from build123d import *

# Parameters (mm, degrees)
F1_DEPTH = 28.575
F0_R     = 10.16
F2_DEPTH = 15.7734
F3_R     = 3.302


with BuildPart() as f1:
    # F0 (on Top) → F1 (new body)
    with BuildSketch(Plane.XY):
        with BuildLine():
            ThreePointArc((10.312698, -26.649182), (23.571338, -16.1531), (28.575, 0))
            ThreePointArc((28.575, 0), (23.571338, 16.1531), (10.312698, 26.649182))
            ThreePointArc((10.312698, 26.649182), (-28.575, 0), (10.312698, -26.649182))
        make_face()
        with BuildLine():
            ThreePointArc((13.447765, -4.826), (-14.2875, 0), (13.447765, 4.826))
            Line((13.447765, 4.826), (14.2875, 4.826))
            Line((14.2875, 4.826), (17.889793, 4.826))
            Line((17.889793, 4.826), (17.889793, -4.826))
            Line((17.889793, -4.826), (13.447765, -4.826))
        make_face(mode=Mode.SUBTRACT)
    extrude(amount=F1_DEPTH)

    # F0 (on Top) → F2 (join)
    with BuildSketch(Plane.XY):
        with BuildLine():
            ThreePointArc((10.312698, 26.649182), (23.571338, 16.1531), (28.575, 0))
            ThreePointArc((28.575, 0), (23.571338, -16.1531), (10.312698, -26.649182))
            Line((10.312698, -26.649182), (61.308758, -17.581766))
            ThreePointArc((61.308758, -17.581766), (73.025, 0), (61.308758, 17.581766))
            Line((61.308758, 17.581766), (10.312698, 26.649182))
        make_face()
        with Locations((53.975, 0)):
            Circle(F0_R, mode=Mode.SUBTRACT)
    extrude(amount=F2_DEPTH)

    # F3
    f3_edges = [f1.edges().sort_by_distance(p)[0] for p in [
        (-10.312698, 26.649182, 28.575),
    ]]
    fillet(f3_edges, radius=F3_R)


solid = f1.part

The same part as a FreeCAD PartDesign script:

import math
import FreeCAD as App
import Part
import Sketcher
Q = App.Units.Quantity


def edges_at(feature, points):
    """Names of the edges that pass closest to the given points."""
    edges = feature.Shape.Edges
    near = lambda p: min(range(len(edges)), key=lambda i: edges[i].distToShape(Part.Vertex(*p))[0])
    return sorted({f"Edge{near(p) + 1}" for p in points})

doc = App.newDocument("Part")
body = doc.addObject("PartDesign::Body", "Body")

# Sketch on XY plane
sketch1 = doc.addObject("Sketcher::SketchObject", "Sketch")
body.addObject(sketch1)
sketch1.AttachmentSupport = (doc.XY_Plane, [""])
sketch1.MapMode = "FlatFace"
sketch1.addGeometry([
    Part.ArcOfCircle(Part.Circle(App.Vector(0, 0, 0), App.Vector(0, 0, 1), 28.6), math.radians(-69), math.radians(0)),  # 0
    Part.ArcOfCircle(Part.Circle(App.Vector(0, 0, 0), App.Vector(0, 0, 1), 28.6), math.radians(0), math.radians(69)),  # 1
    Part.ArcOfCircle(Part.Circle(App.Vector(0, 0, 0), App.Vector(0, 0, 1), 28.6), math.radians(69), math.radians(291)),  # 2
    Part.LineSegment(App.Vector(17.9, -4.8, 0), App.Vector(13.4, -4.8, 0)),  # 3
    Part.ArcOfCircle(Part.Circle(App.Vector(0, 0, 0), App.Vector(0, 0, 1), 14.3), math.radians(20), math.radians(340)),  # 4
    Part.LineSegment(App.Vector(13.4, 4.8, 0), App.Vector(17.9, 4.8, 0)),  # 5
    Part.LineSegment(App.Vector(17.9, 4.8, 0), App.Vector(17.9, -4.8, 0)),  # 6
], False)
sketch1.addConstraint([
    Sketcher.Constraint("Tangent", 0, 2, 1, 1),
    Sketcher.Constraint("Tangent", 1, 2, 2, 1),
    Sketcher.Constraint("Tangent", 2, 2, 0, 1),
    Sketcher.Constraint("Coincident", 3, 2, 4, 2),
    Sketcher.Constraint("Coincident", 4, 1, 5, 1),
    Sketcher.Constraint("Coincident", 5, 2, 6, 1),
    Sketcher.Constraint("Coincident", 6, 2, 3, 1),
    Sketcher.Constraint("Horizontal", 3),
    Sketcher.Constraint("Horizontal", 5),
    Sketcher.Constraint("Vertical", 6),
    Sketcher.Constraint("Coincident", 0, 3, -1, 1),
    Sketcher.Constraint("Coincident", 4, 3, -1, 1),
    Sketcher.Constraint("PointOnObject", 0, 2, -1),
    Sketcher.Constraint("Vertical", 1, 2, 2, 2),
    Sketcher.Constraint("Vertical", 3, 2, 4, 1),
    Sketcher.Constraint("Radius", 0, Q("1.1250001 in")),
    Sketcher.Constraint("Radius", 4, Q("0.5625 in")),
    Sketcher.Constraint("DistanceY", 6, 2, 6, 1, Q("0.38 in")),
    Sketcher.Constraint("DistanceX", 3, 2, 3, 1, 4.442028),
    Sketcher.Constraint("DistanceX", -1, 1, 2, 2, 10.312698),
])
pad1 = doc.addObject("PartDesign::Pad", "Pad")
body.addObject(pad1)
pad1.Profile = sketch1
pad1.Length = Q("1.125 in")

# Sketch on XY plane
sketch2 = doc.addObject("Sketcher::SketchObject", "Sketch001")
body.addObject(sketch2)
sketch2.AttachmentSupport = (doc.XY_Plane, [""])
sketch2.MapMode = "FlatFace"
sketch2.addGeometry([
    Part.ArcOfCircle(Part.Circle(App.Vector(0, 0, 0), App.Vector(0, 0, 1), 29), math.radians(0), math.radians(69)),  # 0
    Part.ArcOfCircle(Part.Circle(App.Vector(0, 0, 0), App.Vector(0, 0, 1), 29), math.radians(-69), math.radians(0)),  # 1
    Part.LineSegment(App.Vector(10, -27, 0), App.Vector(61, -18, 0)),  # 2
    Part.ArcOfCircle(Part.Circle(App.Vector(54, 0, 0), App.Vector(0, 0, 1), 19), math.radians(-67), math.radians(67)),  # 3
    Part.LineSegment(App.Vector(61, 18, 0), App.Vector(10, 27, 0)),  # 4
    Part.Circle(App.Vector(54, 0, 0), App.Vector(0, 0, 1), 10),  # 5
], False)
sketch2.addConstraint([
    Sketcher.Constraint("Tangent", 0, 1, 1, 2),
    Sketcher.Constraint("Coincident", 1, 1, 2, 1),
    Sketcher.Constraint("Coincident", 2, 2, 3, 1),
    Sketcher.Constraint("Coincident", 3, 2, 4, 1),
    Sketcher.Constraint("Coincident", 4, 2, 0, 2),
    Sketcher.Constraint("Coincident", 0, 3, -1, 1),
    Sketcher.Constraint("Coincident", 5, 3, 3, 3),
    Sketcher.Constraint("Equal", 0, 1),
    Sketcher.Constraint("Symmetric", 2, 2, 3, 2, -1),
    Sketcher.Constraint("PointOnObject", 0, 1, -1),
    Sketcher.Constraint("Vertical", 1, 1, 4, 2),
    Sketcher.Constraint("Diameter", 5, Q("0.8 in")),
    Sketcher.Constraint("Radius", 3, Q("0.75 in")),
    Sketcher.Constraint("Radius", 0, Q("1.1250001 in")),
    Sketcher.Constraint("DistanceX", 0, 1, 3, 3, Q("1 in")),
    Sketcher.Constraint("DistanceX", 0, 3, 1, 1, 10.3127),
    Sketcher.Constraint("Distance", 2, 51.795909),
])
pad2 = doc.addObject("PartDesign::Pad", "Pad001")
body.addObject(pad2)
pad2.Profile = sketch2
pad2.Length = Q("0.621 in")
doc.recompute()

fillet = doc.addObject("PartDesign::Fillet", "Fillet")
body.addObject(fillet)
fillet.Base = (pad2, edges_at(pad2, [(-28.575, 0, 28.575)]))
fillet.Radius = Q("0.13 in")

doc.recompute()
